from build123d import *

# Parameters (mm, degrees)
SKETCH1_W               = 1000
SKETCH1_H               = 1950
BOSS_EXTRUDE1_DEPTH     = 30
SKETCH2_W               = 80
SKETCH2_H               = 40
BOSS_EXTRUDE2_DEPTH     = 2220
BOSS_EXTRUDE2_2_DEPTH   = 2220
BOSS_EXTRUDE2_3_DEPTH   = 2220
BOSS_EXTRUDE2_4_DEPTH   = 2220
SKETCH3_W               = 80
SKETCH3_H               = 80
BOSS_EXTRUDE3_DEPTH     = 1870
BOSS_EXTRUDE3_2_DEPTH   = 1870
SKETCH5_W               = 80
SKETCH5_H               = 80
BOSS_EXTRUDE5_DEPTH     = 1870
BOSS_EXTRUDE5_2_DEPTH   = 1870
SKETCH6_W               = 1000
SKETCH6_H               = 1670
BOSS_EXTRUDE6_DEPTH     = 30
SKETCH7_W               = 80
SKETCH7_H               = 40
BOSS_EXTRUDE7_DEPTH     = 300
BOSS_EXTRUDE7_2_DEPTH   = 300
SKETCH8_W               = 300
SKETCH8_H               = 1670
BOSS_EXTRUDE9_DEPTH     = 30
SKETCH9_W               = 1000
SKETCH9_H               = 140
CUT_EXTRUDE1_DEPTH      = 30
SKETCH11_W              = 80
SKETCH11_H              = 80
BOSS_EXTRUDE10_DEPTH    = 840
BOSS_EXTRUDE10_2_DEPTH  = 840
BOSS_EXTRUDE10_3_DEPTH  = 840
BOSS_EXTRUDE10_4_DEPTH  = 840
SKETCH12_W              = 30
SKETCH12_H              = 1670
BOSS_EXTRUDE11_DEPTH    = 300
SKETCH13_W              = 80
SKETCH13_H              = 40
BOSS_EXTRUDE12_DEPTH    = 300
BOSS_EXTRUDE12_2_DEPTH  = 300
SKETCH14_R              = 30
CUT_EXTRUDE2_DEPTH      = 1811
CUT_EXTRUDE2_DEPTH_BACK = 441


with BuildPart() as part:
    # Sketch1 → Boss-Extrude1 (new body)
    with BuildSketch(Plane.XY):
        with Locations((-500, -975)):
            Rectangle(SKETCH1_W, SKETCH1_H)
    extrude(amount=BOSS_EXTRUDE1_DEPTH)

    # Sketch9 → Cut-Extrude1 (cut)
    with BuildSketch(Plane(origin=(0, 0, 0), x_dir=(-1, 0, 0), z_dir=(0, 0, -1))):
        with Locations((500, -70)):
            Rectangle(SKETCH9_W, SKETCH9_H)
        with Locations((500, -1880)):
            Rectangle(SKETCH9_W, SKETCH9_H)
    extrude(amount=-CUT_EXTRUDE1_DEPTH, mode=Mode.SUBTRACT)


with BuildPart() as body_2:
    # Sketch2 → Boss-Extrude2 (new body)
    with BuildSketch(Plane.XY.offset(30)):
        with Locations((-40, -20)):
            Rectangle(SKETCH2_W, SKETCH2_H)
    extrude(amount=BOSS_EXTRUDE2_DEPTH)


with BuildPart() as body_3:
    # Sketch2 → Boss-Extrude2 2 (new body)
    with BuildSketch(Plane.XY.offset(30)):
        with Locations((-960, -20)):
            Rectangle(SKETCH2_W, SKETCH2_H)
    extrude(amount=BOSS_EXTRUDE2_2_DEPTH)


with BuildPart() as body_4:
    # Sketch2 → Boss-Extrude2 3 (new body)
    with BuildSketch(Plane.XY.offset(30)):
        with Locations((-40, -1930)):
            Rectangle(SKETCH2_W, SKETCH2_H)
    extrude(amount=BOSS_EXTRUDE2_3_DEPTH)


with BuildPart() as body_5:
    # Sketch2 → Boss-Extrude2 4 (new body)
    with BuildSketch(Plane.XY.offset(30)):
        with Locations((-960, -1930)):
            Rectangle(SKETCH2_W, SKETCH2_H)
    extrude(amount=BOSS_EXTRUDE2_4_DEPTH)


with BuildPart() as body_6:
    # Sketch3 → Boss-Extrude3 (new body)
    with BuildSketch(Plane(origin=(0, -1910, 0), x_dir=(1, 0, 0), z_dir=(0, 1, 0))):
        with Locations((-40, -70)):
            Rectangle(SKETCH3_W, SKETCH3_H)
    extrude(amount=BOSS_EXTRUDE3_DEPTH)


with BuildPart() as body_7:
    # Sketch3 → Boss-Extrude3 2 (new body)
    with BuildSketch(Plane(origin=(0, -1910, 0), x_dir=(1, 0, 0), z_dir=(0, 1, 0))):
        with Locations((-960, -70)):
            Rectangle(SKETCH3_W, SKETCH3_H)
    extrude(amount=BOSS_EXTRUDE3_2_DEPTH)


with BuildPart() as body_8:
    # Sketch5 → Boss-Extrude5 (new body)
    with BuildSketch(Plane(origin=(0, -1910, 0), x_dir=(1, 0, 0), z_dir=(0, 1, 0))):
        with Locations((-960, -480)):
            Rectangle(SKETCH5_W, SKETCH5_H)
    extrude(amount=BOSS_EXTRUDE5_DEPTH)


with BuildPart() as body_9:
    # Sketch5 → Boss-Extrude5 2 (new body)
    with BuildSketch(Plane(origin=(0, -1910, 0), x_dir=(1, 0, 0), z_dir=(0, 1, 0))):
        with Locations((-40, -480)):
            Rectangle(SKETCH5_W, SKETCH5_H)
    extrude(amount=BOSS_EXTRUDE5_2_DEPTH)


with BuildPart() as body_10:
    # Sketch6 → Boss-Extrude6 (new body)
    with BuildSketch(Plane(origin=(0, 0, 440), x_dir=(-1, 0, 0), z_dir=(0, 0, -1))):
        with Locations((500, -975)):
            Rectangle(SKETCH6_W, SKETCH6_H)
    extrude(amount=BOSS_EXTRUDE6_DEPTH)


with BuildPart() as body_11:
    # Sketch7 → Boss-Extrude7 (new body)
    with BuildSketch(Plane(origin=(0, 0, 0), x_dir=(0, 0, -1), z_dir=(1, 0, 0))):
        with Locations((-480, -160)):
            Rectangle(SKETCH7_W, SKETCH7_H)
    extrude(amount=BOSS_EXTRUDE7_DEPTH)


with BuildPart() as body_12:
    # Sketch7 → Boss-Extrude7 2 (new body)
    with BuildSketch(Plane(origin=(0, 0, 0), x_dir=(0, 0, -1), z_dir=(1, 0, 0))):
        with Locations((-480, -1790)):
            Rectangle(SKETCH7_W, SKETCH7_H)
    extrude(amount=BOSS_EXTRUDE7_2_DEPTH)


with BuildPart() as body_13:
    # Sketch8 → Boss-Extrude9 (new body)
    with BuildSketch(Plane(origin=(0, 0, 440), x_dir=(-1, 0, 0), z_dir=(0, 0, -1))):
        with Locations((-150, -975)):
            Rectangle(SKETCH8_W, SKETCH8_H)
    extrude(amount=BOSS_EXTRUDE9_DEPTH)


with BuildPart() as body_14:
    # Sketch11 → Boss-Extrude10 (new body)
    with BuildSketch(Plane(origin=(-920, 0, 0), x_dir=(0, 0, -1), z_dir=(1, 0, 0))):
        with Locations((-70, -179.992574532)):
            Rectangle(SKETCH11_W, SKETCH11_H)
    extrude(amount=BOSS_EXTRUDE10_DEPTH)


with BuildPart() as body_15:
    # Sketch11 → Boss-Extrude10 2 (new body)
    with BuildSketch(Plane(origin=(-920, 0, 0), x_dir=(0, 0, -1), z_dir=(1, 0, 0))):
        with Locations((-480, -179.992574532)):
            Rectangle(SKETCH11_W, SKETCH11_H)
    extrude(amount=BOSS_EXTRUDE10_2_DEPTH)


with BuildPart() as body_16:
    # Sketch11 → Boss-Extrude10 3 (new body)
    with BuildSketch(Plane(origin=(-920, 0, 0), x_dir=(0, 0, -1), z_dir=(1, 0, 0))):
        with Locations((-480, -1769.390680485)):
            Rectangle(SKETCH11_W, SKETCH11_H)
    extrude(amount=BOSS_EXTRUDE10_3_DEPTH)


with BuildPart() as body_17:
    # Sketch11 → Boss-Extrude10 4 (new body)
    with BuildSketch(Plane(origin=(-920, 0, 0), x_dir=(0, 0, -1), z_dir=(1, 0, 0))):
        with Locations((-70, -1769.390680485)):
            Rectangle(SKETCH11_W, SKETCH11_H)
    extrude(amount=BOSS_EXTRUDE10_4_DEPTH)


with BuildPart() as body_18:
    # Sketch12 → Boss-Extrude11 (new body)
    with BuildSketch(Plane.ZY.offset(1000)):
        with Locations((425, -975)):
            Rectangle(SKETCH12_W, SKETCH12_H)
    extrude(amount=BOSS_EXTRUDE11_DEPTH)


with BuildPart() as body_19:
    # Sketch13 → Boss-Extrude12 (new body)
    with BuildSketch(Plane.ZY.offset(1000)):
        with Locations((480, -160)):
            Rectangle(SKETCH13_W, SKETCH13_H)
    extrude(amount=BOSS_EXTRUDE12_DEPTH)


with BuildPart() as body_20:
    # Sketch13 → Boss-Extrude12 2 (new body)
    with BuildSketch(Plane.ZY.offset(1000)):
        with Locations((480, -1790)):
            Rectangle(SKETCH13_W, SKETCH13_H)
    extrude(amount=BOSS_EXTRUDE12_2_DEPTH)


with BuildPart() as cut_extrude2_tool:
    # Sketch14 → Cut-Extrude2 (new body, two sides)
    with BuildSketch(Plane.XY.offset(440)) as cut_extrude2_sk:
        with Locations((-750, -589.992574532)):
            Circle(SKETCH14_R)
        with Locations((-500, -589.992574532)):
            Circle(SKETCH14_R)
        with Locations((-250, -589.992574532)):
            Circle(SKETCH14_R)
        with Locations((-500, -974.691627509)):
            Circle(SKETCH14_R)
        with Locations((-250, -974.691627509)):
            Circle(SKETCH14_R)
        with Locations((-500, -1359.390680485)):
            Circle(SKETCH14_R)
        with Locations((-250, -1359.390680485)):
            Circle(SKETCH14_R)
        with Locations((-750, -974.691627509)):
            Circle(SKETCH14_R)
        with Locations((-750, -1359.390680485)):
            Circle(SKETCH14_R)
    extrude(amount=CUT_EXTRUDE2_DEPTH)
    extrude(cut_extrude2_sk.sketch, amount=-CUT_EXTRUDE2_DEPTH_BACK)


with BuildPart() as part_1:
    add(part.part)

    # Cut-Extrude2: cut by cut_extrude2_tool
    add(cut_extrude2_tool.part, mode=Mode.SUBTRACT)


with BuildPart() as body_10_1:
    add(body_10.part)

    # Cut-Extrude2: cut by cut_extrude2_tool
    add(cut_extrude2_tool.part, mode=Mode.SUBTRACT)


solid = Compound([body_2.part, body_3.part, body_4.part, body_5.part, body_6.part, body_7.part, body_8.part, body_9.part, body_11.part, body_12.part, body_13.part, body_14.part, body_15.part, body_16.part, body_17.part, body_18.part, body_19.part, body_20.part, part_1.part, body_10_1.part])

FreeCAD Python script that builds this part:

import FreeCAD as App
import Part
import Sketcher

V = App.Vector

doc = App.newDocument("Part")
body = doc.addObject("PartDesign::Body", "Body")

# Sketch on XY plane
sketch1 = body.newObject("Sketcher::SketchObject", "Sketch")
sketch1.AttachmentSupport = (doc.getObject("XY_Plane"), [""])
sketch1.MapMode = "FlatFace"
sketch1.addGeometry(Part.LineSegment(V(-1000, 0, 0), V(-1000, -1950, 0)), False)
sketch1.addGeometry(Part.LineSegment(V(-1000, -1950, 0), V(0, -1950, 0)), False)
sketch1.addGeometry(Part.LineSegment(V(0, -1950, 0), V(0, 0, 0)), False)
sketch1.addGeometry(Part.LineSegment(V(0, 0, 0), V(-1000, 0, 0)), False)
sketch1.addConstraint(Sketcher.Constraint("Coincident", 0, 2, 1, 1))
sketch1.addConstraint(Sketcher.Constraint("Coincident", 1, 2, 2, 1))
sketch1.addConstraint(Sketcher.Constraint("Coincident", 2, 2, 3, 1))
sketch1.addConstraint(Sketcher.Constraint("Coincident", 3, 2, 0, 1))
sketch1.addConstraint(Sketcher.Constraint("Vertical", 0))
sketch1.addConstraint(Sketcher.Constraint("Horizontal", 1))
sketch1.addConstraint(Sketcher.Constraint("Vertical", 2))
sketch1.addConstraint(Sketcher.Constraint("Horizontal", 3))
sketch1.addConstraint(Sketcher.Constraint("Coincident", 2, 2, -1, 1))
sketch1.addConstraint(Sketcher.Constraint("DistanceX", 1, 1, 1, 2, 1000.0))
sketch1.addConstraint(Sketcher.Constraint("DistanceY", 0, 2, 0, 1, 1950.0))
pad1 = body.newObject("PartDesign::Pad", "Pad")
pad1.Profile = sketch1
pad1.Length = 30

# Sketch on XY plane
sketch2 = body.newObject("Sketcher::SketchObject", "Sketch001")
sketch2.AttachmentSupport = (doc.getObject("XY_Plane"), [""])
sketch2.MapMode = "FlatFace"
sketch2.addGeometry(Part.LineSegment(V(0, 0, 0), V(0, -140, 0)), False)
sketch2.addGeometry(Part.LineSegment(V(0, -140, 0), V(-1000, -140, 0)), False)
sketch2.addGeometry(Part.LineSegment(V(-1000, -140, 0), V(-1000, 0, 0)), False)
sketch2.addGeometry(Part.LineSegment(V(-1000, 0, 0), V(0, 0, 0)), False)
sketch2.addGeometry(Part.LineSegment(V(0, -1810, 0), V(0, -1950, 0)), False)
sketch2.addGeometry(Part.LineSegment(V(0, -1950, 0), V(-1000, -1950, 0)), False)
sketch2.addGeometry(Part.LineSegment(V(-1000, -1950, 0), V(-1000, -1810, 0)), False)
sketch2.addGeometry(Part.LineSegment(V(-1000, -1810, 0), V(0, -1810, 0)), False)
sketch2.addConstraint(Sketcher.Constraint("Coincident", 0, 2, 1, 1))
sketch2.addConstraint(Sketcher.Constraint("Coincident", 1, 2, 2, 1))
sketch2.addConstraint(Sketcher.Constraint("Coincident", 2, 2, 3, 1))
sketch2.addConstraint(Sketcher.Constraint("Coincident", 3, 2, 0, 1))
sketch2.addConstraint(Sketcher.Constraint("Coincident", 4, 2, 5, 1))
sketch2.addConstraint(Sketcher.Constraint("Coincident", 5, 2, 6, 1))
sketch2.addConstraint(Sketcher.Constraint("Coincident", 6, 2, 7, 1))
sketch2.addConstraint(Sketcher.Constraint("Coincident", 7, 2, 4, 1))
sketch2.addConstraint(Sketcher.Constraint("Vertical", 0))
sketch2.addConstraint(Sketcher.Constraint("Horizontal", 1))
sketch2.addConstraint(Sketcher.Constraint("Vertical", 2))
sketch2.addConstraint(Sketcher.Constraint("Horizontal", 3))
sketch2.addConstraint(Sketcher.Constraint("Vertical", 4))
sketch2.addConstraint(Sketcher.Constraint("Horizontal", 5))
sketch2.addConstraint(Sketcher.Constraint("Vertical", 6))
sketch2.addConstraint(Sketcher.Constraint("Horizontal", 7))
sketch2.addConstraint(Sketcher.Constraint("Coincident", 3, 2, -1, 1))
sketch2.addConstraint(Sketcher.Constraint("PointOnObject", 4, 2, -2))
sketch2.addConstraint(Sketcher.Constraint("Vertical", 2, 2, 5, 2))
sketch2.addConstraint(Sketcher.Constraint("Equal", 2, 4))
sketch2.addConstraint(Sketcher.Constraint("DistanceX", 1, 2, 1, 1, 1000.0))
sketch2.addConstraint(Sketcher.Constraint("DistanceY", 0, 2, 0, 1, 140.0))
sketch2.addConstraint(Sketcher.Constraint("DistanceY", 4, 2, -1, 1, 1950.0))
pocket1 = body.newObject("PartDesign::Pocket", "Pocket")
pocket1.Profile = sketch2
pocket1.Length = 30
pocket1.Reversed = True
body2 = doc.addObject("PartDesign::Body", "Body001")

# Sketch on XY plane
sketch3 = body2.newObject("Sketcher::SketchObject", "Sketch002")
sketch3.AttachmentSupport = (doc.getObject("XY_Plane001"), [""])
sketch3.MapMode = "FlatFace"
sketch3.AttachmentOffset = App.Placement(V(0, 0, 30), App.Rotation())
sketch3.addGeometry(Part.LineSegment(V(-80, 0, 0), V(-80, -40, 0)), False)
sketch3.addGeometry(Part.LineSegment(V(-80, -40, 0), V(0, -40, 0)), False)
sketch3.addGeometry(Part.LineSegment(V(0, -40, 0), V(0, 0, 0)), False)
sketch3.addGeometry(Part.LineSegment(V(0, 0, 0), V(-80, 0, 0)), False)
sketch3.addConstraint(Sketcher.Constraint("Coincident", 0, 2, 1, 1))
sketch3.addConstraint(Sketcher.Constraint("Coincident", 1, 2, 2, 1))
sketch3.addConstraint(Sketcher.Constraint("Coincident", 2, 2, 3, 1))
sketch3.addConstraint(Sketcher.Constraint("Coincident", 3, 2, 0, 1))
sketch3.addConstraint(Sketcher.Constraint("Vertical", 0))
sketch3.addConstraint(Sketcher.Constraint("Horizontal", 1))
sketch3.addConstraint(Sketcher.Constraint("Vertical", 2))
sketch3.addConstraint(Sketcher.Constraint("Horizontal", 3))
sketch3.addConstraint(Sketcher.Constraint("Coincident", 2, 2, -1, 1))
sketch3.addConstraint(Sketcher.Constraint("DistanceX", 1, 1, 1, 2, 80.0))
sketch3.addConstraint(Sketcher.Constraint("DistanceY", 0, 2, 0, 1, 40.0))
pad2 = body2.newObject("PartDesign::Pad", "Pad001")
pad2.Profile = sketch3
pad2.Length = 2220
body3 = doc.addObject("PartDesign::Body", "Body002")

# Sketch on XY plane
sketch4 = body3.newObject("Sketcher::SketchObject", "Sketch003")
sketch4.AttachmentSupport = (doc.getObject("XY_Plane002"), [""])
sketch4.MapMode = "FlatFace"
sketch4.AttachmentOffset = App.Placement(V(0, 0, 30), App.Rotation())
sketch4.addGeometry(Part.LineSegment(V(-1000, 0, 0), V(-1000, -40, 0)), False)
sketch4.addGeometry(Part.LineSegment(V(-1000, -40, 0), V(-920, -40, 0)), False)
sketch4.addGeometry(Part.LineSegment(V(-920, -40, 0), V(-920, 0, 0)), False)
sketch4.addGeometry(Part.LineSegment(V(-920, 0, 0), V(-1000, 0, 0)), False)
sketch4.addConstraint(Sketcher.Constraint("Coincident", 0, 2, 1, 1))
sketch4.addConstraint(Sketcher.Constraint("Coincident", 1, 2, 2, 1))
sketch4.addConstraint(Sketcher.Constraint("Coincident", 2, 2, 3, 1))
sketch4.addConstraint(Sketcher.Constraint("Coincident", 3, 2, 0, 1))
sketch4.addConstraint(Sketcher.Constraint("Vertical", 0))
sketch4.addConstraint(Sketcher.Constraint("Horizontal", 1))
sketch4.addConstraint(Sketcher.Constraint("Vertical", 2))
sketch4.addConstraint(Sketcher.Constraint("Horizontal", 3))
sketch4.addConstraint(Sketcher.Constraint("PointOnObject", 2, 2, -1))
sketch4.addConstraint(Sketcher.Constraint("DistanceX", 1, 1, 1, 2, 80.0))
sketch4.addConstraint(Sketcher.Constraint("DistanceY", 0, 2, 0, 1, 40.0))
sketch4.addConstraint(Sketcher.Constraint("DistanceX", 0, 2, -1, 1, 1000.0))
pad3 = body3.newObject("PartDesign::Pad", "Pad002")
pad3.Profile = sketch4
pad3.Length = 2220
body4 = doc.addObject("PartDesign::Body", "Body003")

# Sketch on XY plane
sketch5 = body4.newObject("Sketcher::SketchObject", "Sketch004")
sketch5.AttachmentSupport = (doc.getObject("XY_Plane003"), [""])
sketch5.MapMode = "FlatFace"
sketch5.AttachmentOffset = App.Placement(V(0, 0, 30), App.Rotation())
sketch5.addGeometry(Part.LineSegment(V(-80, -1910, 0), V(-80, -1950, 0)), False)
sketch5.addGeometry(Part.LineSegment(V(-80, -1950, 0), V(0, -1950, 0)), False)
sketch5.addGeometry(Part.LineSegment(V(0, -1950, 0), V(0, -1910, 0)), False)
sketch5.addGeometry(Part.LineSegment(V(0, -1910, 0), V(-80, -1910, 0)), False)
sketch5.addConstraint(Sketcher.Constraint("Coincident", 0, 2, 1, 1))
sketch5.addConstraint(Sketcher.Constraint("Coincident", 1, 2, 2, 1))
sketch5.addConstraint(Sketcher.Constraint("Coincident", 2, 2, 3, 1))
sketch5.addConstraint(Sketcher.Constraint("Coincident", 3, 2, 0, 1))
sketch5.addConstraint(Sketcher.Constraint("Vertical", 0))
sketch5.addConstraint(Sketcher.Constraint("Horizontal", 1))
sketch5.addConstraint(Sketcher.Constraint("Vertical", 2))
sketch5.addConstraint(Sketcher.Constraint("Horizontal", 3))
sketch5.addConstraint(Sketcher.Constraint("PointOnObject", 1, 2, -2))
sketch5.addConstraint(Sketcher.Constraint("DistanceX", 1, 1, 1, 2, 80.0))
sketch5.addConstraint(Sketcher.Constraint("DistanceY", 0, 2, 0, 1, 40.0))
sketch5.addConstraint(Sketcher.Constraint("DistanceY", 0, 2, -1, 1, 1950.0))
pad4 = body4.newObject("PartDesign::Pad", "Pad003")
pad4.Profile = sketch5
pad4.Length = 2220
body5 = doc.addObject("PartDesign::Body", "Body004")

# Sketch on XY plane
sketch6 = body5.newObject("Sketcher::SketchObject", "Sketch005")
sketch6.AttachmentSupport = (doc.getObject("XY_Plane004"), [""])
sketch6.MapMode = "FlatFace"
sketch6.AttachmentOffset = App.Placement(V(0, 0, 30), App.Rotation())
sketch6.addGeometry(Part.LineSegment(V(-1000, -1910, 0), V(-1000, -1950, 0)), False)
sketch6.addGeometry(Part.LineSegment(V(-1000, -1950, 0), V(-920, -1950, 0)), False)
sketch6.addGeometry(Part.LineSegment(V(-920, -1950, 0), V(-920, -1910, 0)), False)
sketch6.addGeometry(Part.LineSegment(V(-920, -1910, 0), V(-1000, -1910, 0)), False)
sketch6.addConstraint(Sketcher.Constraint("Coincident", 0, 2, 1, 1))
sketch6.addConstraint(Sketcher.Constraint("Coincident", 1, 2, 2, 1))
sketch6.addConstraint(Sketcher.Constraint("Coincident", 2, 2, 3, 1))
sketch6.addConstraint(Sketcher.Constraint("Coincident", 3, 2, 0, 1))
sketch6.addConstraint(Sketcher.Constraint("Vertical", 0))
sketch6.addConstraint(Sketcher.Constraint("Horizontal", 1))
sketch6.addConstraint(Sketcher.Constraint("Vertical", 2))
sketch6.addConstraint(Sketcher.Constraint("Horizontal", 3))
sketch6.addConstraint(Sketcher.Constraint("DistanceX", 1, 1, 1, 2, 80.0))
sketch6.addConstraint(Sketcher.Constraint("DistanceY", 0, 2, 0, 1, 40.0))
sketch6.addConstraint(Sketcher.Constraint("DistanceX", 0, 2, -1, 1, 1000.0))
sketch6.addConstraint(Sketcher.Constraint("DistanceY", 0, 2, -1, 1, 1950.0))
pad5 = body5.newObject("PartDesign::Pad", "Pad004")
pad5.Profile = sketch6
pad5.Length = 2220
body6 = doc.addObject("PartDesign::Body", "Body005")

# Sketch on XZ plane
sketch7 = body6.newObject("Sketcher::SketchObject", "Sketch006")
sketch7.AttachmentSupport = (doc.getObject("XZ_Plane005"), [""])
sketch7.MapMode = "FlatFace"
sketch7.AttachmentOffset = App.Placement(V(0, 0, 1910), App.Rotation())
sketch7.addGeometry(Part.LineSegment(V(-80, 30, 0), V(-80, 110, 0)), False)
sketch7.addGeometry(Part.LineSegment(V(-80, 110, 0), V(0, 110, 0)), False)
sketch7.addGeometry(Part.LineSegment(V(0, 110, 0), V(0, 30, 0)), False)
sketch7.addGeometry(Part.LineSegment(V(0, 30, 0), V(-80, 30, 0)), False)
sketch7.addConstraint(Sketcher.Constraint("Coincident", 0, 2, 1, 1))
sketch7.addConstraint(Sketcher.Constraint("Coincident", 1, 2, 2, 1))
sketch7.addConstraint(Sketcher.Constraint("Coincident", 2, 2, 3, 1))
sketch7.addConstraint(Sketcher.Constraint("Coincident", 3, 2, 0, 1))
sketch7.addConstraint(Sketcher.Constraint("Vertical", 0))
sketch7.addConstraint(Sketcher.Constraint("Horizontal", 1))
sketch7.addConstraint(Sketcher.Constraint("Vertical", 2))
sketch7.addConstraint(Sketcher.Constraint("Horizontal", 3))
sketch7.addConstraint(Sketcher.Constraint("PointOnObject", 1, 2, -2))
sketch7.addConstraint(Sketcher.Constraint("Equal", 3, 0))
sketch7.addConstraint(Sketcher.Constraint("DistanceX", 1, 1, 1, 2, 80.0))
sketch7.addConstraint(Sketcher.Constraint("DistanceY", -1, 1, 0, 2, 110.0))
pad6 = body6.newObject("PartDesign::Pad", "Pad005")
pad6.Profile = sketch7
pad6.Length = 1870
pad6.Reversed = True
body7 = doc.addObject("PartDesign::Body", "Body006")

# Sketch on XZ plane
sketch8 = body7.newObject("Sketcher::SketchObject", "Sketch007")
sketch8.AttachmentSupport = (doc.getObject("XZ_Plane006"), [""])
sketch8.MapMode = "FlatFace"
sketch8.AttachmentOffset = App.Placement(V(0, 0, 1910), App.Rotation())
sketch8.addGeometry(Part.LineSegment(V(-1000, 30, 0), V(-1000, 110, 0)), False)
sketch8.addGeometry(Part.LineSegment(V(-1000, 110, 0), V(-920, 110, 0)), False)
sketch8.addGeometry(Part.LineSegment(V(-920, 110, 0), V(-920, 30, 0)), False)
sketch8.addGeometry(Part.LineSegment(V(-920, 30, 0), V(-1000, 30, 0)), False)
sketch8.addConstraint(Sketcher.Constraint("Coincident", 0, 2, 1, 1))
sketch8.addConstraint(Sketcher.Constraint("Coincident", 1, 2, 2, 1))
sketch8.addConstraint(Sketcher.Constraint("Coincident", 2, 2, 3, 1))
sketch8.addConstraint(Sketcher.Constraint("Coincident", 3, 2, 0, 1))
sketch8.addConstraint(Sketcher.Constraint("Vertical", 0))
sketch8.addConstraint(Sketcher.Constraint("Horizontal", 1))
sketch8.addConstraint(Sketcher.Constraint("Vertical", 2))
sketch8.addConstraint(Sketcher.Constraint("Horizontal", 3))
sketch8.addConstraint(Sketcher.Constraint("Equal", 3, 0))
sketch8.addConstraint(Sketcher.Constraint("DistanceX", 1, 1, 1, 2, 80.0))
sketch8.addConstraint(Sketcher.Constraint("DistanceX", 0, 2, -1, 1, 1000.0))
sketch8.addConstraint(Sketcher.Constraint("DistanceY", -1, 1, 0, 2, 110.0))
pad7 = body7.newObject("PartDesign::Pad", "Pad006")
pad7.Profile = sketch8
pad7.Length = 1870
pad7.Reversed = True
body8 = doc.addObject("PartDesign::Body", "Body007")

# Sketch on XZ plane
sketch9 = body8.newObject("Sketcher::SketchObject", "Sketch008")
sketch9.AttachmentSupport = (doc.getObject("XZ_Plane007"), [""])
sketch9.MapMode = "FlatFace"
sketch9.AttachmentOffset = App.Placement(V(0, 0, 1910), App.Rotation())
sketch9.addGeometry(Part.LineSegment(V(-1000, 440, 0), V(-1000, 520, 0)), False)
sketch9.addGeometry(Part.LineSegment(V(-1000, 520, 0), V(-920, 520, 0)), False)
sketch9.addGeometry(Part.LineSegment(V(-920, 520, 0), V(-920, 440, 0)), False)
sketch9.addGeometry(Part.LineSegment(V(-920, 440, 0), V(-1000, 440, 0)), False)
sketch9.addConstraint(Sketcher.Constraint("Coincident", 0, 2, 1, 1))
sketch9.addConstraint(Sketcher.Constraint("Coincident", 1, 2, 2, 1))
sketch9.addConstraint(Sketcher.Constraint("Coincident", 2, 2, 3, 1))
sketch9.addConstraint(Sketcher.Constraint("Coincident", 3, 2, 0, 1))
sketch9.addConstraint(Sketcher.Constraint("Vertical", 0))
sketch9.addConstraint(Sketcher.Constraint("Horizontal", 1))
sketch9.addConstraint(Sketcher.Constraint("Vertical", 2))
sketch9.addConstraint(Sketcher.Constraint("Horizontal", 3))
sketch9.addConstraint(Sketcher.Constraint("Equal", 3, 0))
sketch9.addConstraint(Sketcher.Constraint("DistanceX", 1, 1, 1, 2, 80.0))
sketch9.addConstraint(Sketcher.Constraint("DistanceX", 0, 2, -1, 1, 1000.0))
sketch9.addConstraint(Sketcher.Constraint("DistanceY", -1, 1, 0, 2, 520.0))
pad8 = body8.newObject("PartDesign::Pad", "Pad007")
pad8.Profile = sketch9
pad8.Length = 1870
pad8.Reversed = True
body9 = doc.addObject("PartDesign::Body", "Body008")

# Sketch on XZ plane
sketch10 = body9.newObject("Sketcher::SketchObject", "Sketch009")
sketch10.AttachmentSupport = (doc.getObject("XZ_Plane008"), [""])
sketch10.MapMode = "FlatFace"
sketch10.AttachmentOffset = App.Placement(V(0, 0, 1910), App.Rotation())
sketch10.addGeometry(Part.LineSegment(V(-80, 440, 0), V(-80, 520, 0)), False)
sketch10.addGeometry(Part.LineSegment(V(-80, 520, 0), V(0, 520, 0)), False)
sketch10.addGeometry(Part.LineSegment(V(0, 520, 0), V(0, 440, 0)), False)
sketch10.addGeometry(Part.LineSegment(V(0, 440, 0), V(-80, 440, 0)), False)
sketch10.addConstraint(Sketcher.Constraint("Coincident", 0, 2, 1, 1))
sketch10.addConstraint(Sketcher.Constraint("Coincident", 1, 2, 2, 1))
sketch10.addConstraint(Sketcher.Constraint("Coincident", 2, 2, 3, 1))
sketch10.addConstraint(Sketcher.Constraint("Coincident", 3, 2, 0, 1))
sketch10.addConstraint(Sketcher.Constraint("Vertical", 0))
sketch10.addConstraint(Sketcher.Constraint("Horizontal", 1))
sketch10.addConstraint(Sketcher.Constraint("Vertical", 2))
sketch10.addConstraint(Sketcher.Constraint("Horizontal", 3))
sketch10.addConstraint(Sketcher.Constraint("PointOnObject", 1, 2, -2))
sketch10.addConstraint(Sketcher.Constraint("Equal", 3, 0))
sketch10.addConstraint(Sketcher.Constraint("DistanceX", 1, 1, 1, 2, 80.0))
sketch10.addConstraint(Sketcher.Constraint("DistanceY", -1, 1, 0, 2, 520.0))
pad9 = body9.newObject("PartDesign::Pad", "Pad008")
pad9.Profile = sketch10
pad9.Length = 1870
pad9.Reversed = True
body10 = doc.addObject("PartDesign::Body", "Body009")

# Sketch on XY plane
sketch11 = body10.newObject("Sketcher::SketchObject", "Sketch010")
sketch11.AttachmentSupport = (doc.getObject("XY_Plane009"), [""])
sketch11.MapMode = "FlatFace"
sketch11.AttachmentOffset = App.Placement(V(0, 0, 440), App.Rotation())
sketch11.addGeometry(Part.LineSegment(V(0, -140, 0), V(0, -1810, 0)), False)
sketch11.addGeometry(Part.LineSegment(V(0, -1810, 0), V(-1000, -1810, 0)), False)
sketch11.addGeometry(Part.LineSegment(V(-1000, -1810, 0), V(-1000, -140, 0)), False)
sketch11.addGeometry(Part.LineSegment(V(-1000, -140, 0), V(0, -140, 0)), False)
sketch11.addConstraint(Sketcher.Constraint("Coincident", 0, 2, 1, 1))
sketch11.addConstraint(Sketcher.Constraint("Coincident", 1, 2, 2, 1))
sketch11.addConstraint(Sketcher.Constraint("Coincident", 2, 2, 3, 1))
sketch11.addConstraint(Sketcher.Constraint("Coincident", 3, 2, 0, 1))
sketch11.addConstraint(Sketcher.Constraint("Vertical", 0))
sketch11.addConstraint(Sketcher.Constraint("Horizontal", 1))
sketch11.addConstraint(Sketcher.Constraint("Vertical", 2))
sketch11.addConstraint(Sketcher.Constraint("Horizontal", 3))
sketch11.addConstraint(Sketcher.Constraint("PointOnObject", 0, 2, -2))
sketch11.addConstraint(Sketcher.Constraint("DistanceX", 1, 2, 1, 1, 1000.0))
sketch11.addConstraint(Sketcher.Constraint("DistanceY", 0, 2, 0, 1, 1670.0))
sketch11.addConstraint(Sketcher.Constraint("DistanceY", 0, 2, -1, 1, 1810.0))
pad10 = body10.newObject("PartDesign::Pad", "Pad009")
pad10.Profile = sketch11
pad10.Length = 30
pad10.Reversed = True
body11 = doc.addObject("PartDesign::Body", "Body010")

# Sketch on YZ plane
sketch12 = body11.newObject("Sketcher::SketchObject", "Sketch011")
sketch12.AttachmentSupport = (doc.getObject("YZ_Plane010"), [""])
sketch12.MapMode = "FlatFace"
sketch12.addGeometry(Part.LineSegment(V(-140, 520, 0), V(-180, 520, 0)), False)
sketch12.addGeometry(Part.LineSegment(V(-180, 520, 0), V(-180, 440, 0)), False)
sketch12.addGeometry(Part.LineSegment(V(-180, 440, 0), V(-140, 440, 0)), False)
sketch12.addGeometry(Part.LineSegment(V(-140, 440, 0), V(-140, 520, 0)), False)
sketch12.addConstraint(Sketcher.Constraint("Coincident", 0, 2, 1, 1))
sketch12.addConstraint(Sketcher.Constraint("Coincident", 1, 2, 2, 1))
sketch12.addConstraint(Sketcher.Constraint("Coincident", 2, 2, 3, 1))
sketch12.addConstraint(Sketcher.Constraint("Coincident", 3, 2, 0, 1))
sketch12.addConstraint(Sketcher.Constraint("Horizontal", 0))
sketch12.addConstraint(Sketcher.Constraint("Vertical", 1))
sketch12.addConstraint(Sketcher.Constraint("Horizontal", 2))
sketch12.addConstraint(Sketcher.Constraint("Vertical", 3))
sketch12.addConstraint(Sketcher.Constraint("DistanceX", 0, 2, 0, 1, 40.0))
sketch12.addConstraint(Sketcher.Constraint("DistanceY", 1, 2, 1, 1, 80.0))
sketch12.addConstraint(Sketcher.Constraint("DistanceX", 0, 2, -1, 1, 180.0))
sketch12.addConstraint(Sketcher.Constraint("DistanceY", -1, 1, 0, 2, 520.0))
pad11 = body11.newObject("PartDesign::Pad", "Pad010")
pad11.Profile = sketch12
pad11.Length = 300
body12 = doc.addObject("PartDesign::Body", "Body011")

# Sketch on YZ plane
sketch13 = body12.newObject("Sketcher::SketchObject", "Sketch012")
sketch13.AttachmentSupport = (doc.getObject("YZ_Plane011"), [""])
sketch13.MapMode = "FlatFace"
sketch13.addGeometry(Part.LineSegment(V(-1770, 520, 0), V(-1810, 520, 0)), False)
sketch13.addGeometry(Part.LineSegment(V(-1810, 520, 0), V(-1810, 440, 0)), False)
sketch13.addGeometry(Part.LineSegment(V(-1810, 440, 0), V(-1770, 440, 0)), False)
sketch13.addGeometry(Part.LineSegment(V(-1770, 440, 0), V(-1770, 520, 0)), False)
sketch13.addConstraint(Sketcher.Constraint("Coincident", 0, 2, 1, 1))
sketch13.addConstraint(Sketcher.Constraint("Coincident", 1, 2, 2, 1))
sketch13.addConstraint(Sketcher.Constraint("Coincident", 2, 2, 3, 1))
sketch13.addConstraint(Sketcher.Constraint("Coincident", 3, 2, 0, 1))
sketch13.addConstraint(Sketcher.Constraint("Horizontal", 0))
sketch13.addConstraint(Sketcher.Constraint("Vertical", 1))
sketch13.addConstraint(Sketcher.Constraint("Horizontal", 2))
sketch13.addConstraint(Sketcher.Constraint("Vertical", 3))
sketch13.addConstraint(Sketcher.Constraint("DistanceX", 0, 2, 0, 1, 40.0))
sketch13.addConstraint(Sketcher.Constraint("DistanceY", 1, 2, 1, 1, 80.0))
sketch13.addConstraint(Sketcher.Constraint("DistanceX", 0, 2, -1, 1, 1810.0))
sketch13.addConstraint(Sketcher.Constraint("DistanceY", -1, 1, 0, 2, 520.0))
pad12 = body12.newObject("PartDesign::Pad", "Pad011")
pad12.Profile = sketch13
pad12.Length = 300
body13 = doc.addObject("PartDesign::Body", "Body012")

# Sketch on XY plane
sketch14 = body13.newObject("Sketcher::SketchObject", "Sketch013")
sketch14.AttachmentSupport = (doc.getObject("XY_Plane012"), [""])
sketch14.MapMode = "FlatFace"
sketch14.AttachmentOffset = App.Placement(V(0, 0, 440), App.Rotation())
sketch14.addGeometry(Part.LineSegment(V(300, -140, 0), V(300, -1810, 0)), False)
sketch14.addGeometry(Part.LineSegment(V(300, -1810, 0), V(0, -1810, 0)), False)
sketch14.addGeometry(Part.LineSegment(V(0, -1810, 0), V(0, -140, 0)), False)
sketch14.addGeometry(Part.LineSegment(V(0, -140, 0), V(300, -140, 0)), False)
sketch14.addConstraint(Sketcher.Constraint("Coincident", 0, 2, 1, 1))
sketch14.addConstraint(Sketcher.Constraint("Coincident", 1, 2, 2, 1))
sketch14.addConstraint(Sketcher.Constraint("Coincident", 2, 2, 3, 1))
sketch14.addConstraint(Sketcher.Constraint("Coincident", 3, 2, 0, 1))
sketch14.addConstraint(Sketcher.Constraint("Vertical", 0))
sketch14.addConstraint(Sketcher.Constraint("Horizontal", 1))
sketch14.addConstraint(Sketcher.Constraint("Vertical", 2))
sketch14.addConstraint(Sketcher.Constraint("Horizontal", 3))
sketch14.addConstraint(Sketcher.Constraint("PointOnObject", 1, 2, -2))
sketch14.addConstraint(Sketcher.Constraint("DistanceX", 1, 2, 1, 1, 300.0))
sketch14.addConstraint(Sketcher.Constraint("DistanceY", 0, 2, 0, 1, 1670.0))
sketch14.addConstraint(Sketcher.Constraint("DistanceY", 0, 2, -1, 1, 1810.0))
pad13 = body13.newObject("PartDesign::Pad", "Pad012")
pad13.Profile = sketch14
pad13.Length = 30
pad13.Reversed = True
body14 = doc.addObject("PartDesign::Body", "Body013")

# Sketch on YZ plane
sketch15 = body14.newObject("Sketcher::SketchObject", "Sketch014")
sketch15.AttachmentSupport = (doc.getObject("YZ_Plane013"), [""])
sketch15.MapMode = "FlatFace"
sketch15.AttachmentOffset = App.Placement(V(0, 0, -920), App.Rotation())
sketch15.addGeometry(Part.LineSegment(V(-140, 110, 0), V(-220, 110, 0)), False)
sketch15.addGeometry(Part.LineSegment(V(-220, 110, 0), V(-220, 30, 0)), False)
sketch15.addGeometry(Part.LineSegment(V(-220, 30, 0), V(-140, 30, 0)), False)
sketch15.addGeometry(Part.LineSegment(V(-140, 30, 0), V(-140, 110, 0)), False)
sketch15.addConstraint(Sketcher.Constraint("Coincident", 0, 2, 1, 1))
sketch15.addConstraint(Sketcher.Constraint("Coincident", 1, 2, 2, 1))
sketch15.addConstraint(Sketcher.Constraint("Coincident", 2, 2, 3, 1))
sketch15.addConstraint(Sketcher.Constraint("Coincident", 3, 2, 0, 1))
sketch15.addConstraint(Sketcher.Constraint("Horizontal", 0))
sketch15.addConstraint(Sketcher.Constraint("Vertical", 1))
sketch15.addConstraint(Sketcher.Constraint("Horizontal", 2))
sketch15.addConstraint(Sketcher.Constraint("Vertical", 3))
sketch15.addConstraint(Sketcher.Constraint("Equal", 2, 1))
sketch15.addConstraint(Sketcher.Constraint("DistanceX", 0, 2, 0, 1, 80.0))
sketch15.addConstraint(Sketcher.Constraint("DistanceY", -1, 1, 0, 2, 110.0))
sketch15.addConstraint(Sketcher.Constraint("DistanceX", 0, 2, -1, 1, 219.992575))
pad14 = body14.newObject("PartDesign::Pad", "Pad013")
pad14.Profile = sketch15
pad14.Length = 840
body15 = doc.addObject("PartDesign::Body", "Body014")

# Sketch on YZ plane
sketch16 = body15.newObject("Sketcher::SketchObject", "Sketch015")
sketch16.AttachmentSupport = (doc.getObject("YZ_Plane014"), [""])
sketch16.MapMode = "FlatFace"
sketch16.AttachmentOffset = App.Placement(V(0, 0, -920), App.Rotation())
sketch16.addGeometry(Part.LineSegment(V(-140, 520, 0), V(-220, 520, 0)), False)
sketch16.addGeometry(Part.LineSegment(V(-220, 520, 0), V(-220, 440, 0)), False)
sketch16.addGeometry(Part.LineSegment(V(-220, 440, 0), V(-140, 440, 0)), False)
sketch16.addGeometry(Part.LineSegment(V(-140, 440, 0), V(-140, 520, 0)), False)
sketch16.addConstraint(Sketcher.Constraint("Coincident", 0, 2, 1, 1))
sketch16.addConstraint(Sketcher.Constraint("Coincident", 1, 2, 2, 1))
sketch16.addConstraint(Sketcher.Constraint("Coincident", 2, 2, 3, 1))
sketch16.addConstraint(Sketcher.Constraint("Coincident", 3, 2, 0, 1))
sketch16.addConstraint(Sketcher.Constraint("Horizontal", 0))
sketch16.addConstraint(Sketcher.Constraint("Vertical", 1))
sketch16.addConstraint(Sketcher.Constraint("Horizontal", 2))
sketch16.addConstraint(Sketcher.Constraint("Vertical", 3))
sketch16.addConstraint(Sketcher.Constraint("Equal", 2, 1))
sketch16.addConstraint(Sketcher.Constraint("DistanceX", 0, 2, 0, 1, 80.0))
sketch16.addConstraint(Sketcher.Constraint("DistanceY", -1, 1, 0, 2, 520.0))
sketch16.addConstraint(Sketcher.Constraint("DistanceX", 0, 2, -1, 1, 219.992575))
pad15 = body15.newObject("PartDesign::Pad", "Pad014")
pad15.Profile = sketch16
pad15.Length = 840
body16 = doc.addObject("PartDesign::Body", "Body015")

# Sketch on YZ plane
sketch17 = body16.newObject("Sketcher::SketchObject", "Sketch016")
sketch17.AttachmentSupport = (doc.getObject("YZ_Plane015"), [""])
sketch17.MapMode = "FlatFace"
sketch17.AttachmentOffset = App.Placement(V(0, 0, -920), App.Rotation())
sketch17.addGeometry(Part.LineSegment(V(-1729, 520, 0), V(-1809, 520, 0)), False)
sketch17.addGeometry(Part.LineSegment(V(-1809, 520, 0), V(-1809, 440, 0)), False)
sketch17.addGeometry(Part.LineSegment(V(-1809, 440, 0), V(-1729, 440, 0)), False)
sketch17.addGeometry(Part.LineSegment(V(-1729, 440, 0), V(-1729, 520, 0)), False)
sketch17.addConstraint(Sketcher.Constraint("Coincident", 0, 2, 1, 1))
sketch17.addConstraint(Sketcher.Constraint("Coincident", 1, 2, 2, 1))
sketch17.addConstraint(Sketcher.Constraint("Coincident", 2, 2, 3, 1))
sketch17.addConstraint(Sketcher.Constraint("Coincident", 3, 2, 0, 1))
sketch17.addConstraint(Sketcher.Constraint("Horizontal", 0))
sketch17.addConstraint(Sketcher.Constraint("Vertical", 1))
sketch17.addConstraint(Sketcher.Constraint("Horizontal", 2))
sketch17.addConstraint(Sketcher.Constraint("Vertical", 3))
sketch17.addConstraint(Sketcher.Constraint("Equal", 2, 1))
sketch17.addConstraint(Sketcher.Constraint("DistanceX", 0, 2, 0, 1, 80.0))
sketch17.addConstraint(Sketcher.Constraint("DistanceY", -1, 1, 0, 2, 520.0))
sketch17.addConstraint(Sketcher.Constraint("DistanceX", 0, 2, -1, 1, 1809.39068))
pad16 = body16.newObject("PartDesign::Pad", "Pad015")
pad16.Profile = sketch17
pad16.Length = 840
body17 = doc.addObject("PartDesign::Body", "Body016")

# Sketch on YZ plane
sketch18 = body17.newObject("Sketcher::SketchObject", "Sketch017")
sketch18.AttachmentSupport = (doc.getObject("YZ_Plane016"), [""])
sketch18.MapMode = "FlatFace"
sketch18.AttachmentOffset = App.Placement(V(0, 0, -920), App.Rotation())
sketch18.addGeometry(Part.LineSegment(V(-1729, 110, 0), V(-1809, 110, 0)), False)
sketch18.addGeometry(Part.LineSegment(V(-1809, 110, 0), V(-1809, 30, 0)), False)
sketch18.addGeometry(Part.LineSegment(V(-1809, 30, 0), V(-1729, 30, 0)), False)
sketch18.addGeometry(Part.LineSegment(V(-1729, 30, 0), V(-1729, 110, 0)), False)
sketch18.addConstraint(Sketcher.Constraint("Coincident", 0, 2, 1, 1))
sketch18.addConstraint(Sketcher.Constraint("Coincident", 1, 2, 2, 1))
sketch18.addConstraint(Sketcher.Constraint("Coincident", 2, 2, 3, 1))
sketch18.addConstraint(Sketcher.Constraint("Coincident", 3, 2, 0, 1))
sketch18.addConstraint(Sketcher.Constraint("Horizontal", 0))
sketch18.addConstraint(Sketcher.Constraint("Vertical", 1))
sketch18.addConstraint(Sketcher.Constraint("Horizontal", 2))
sketch18.addConstraint(Sketcher.Constraint("Vertical", 3))
sketch18.addConstraint(Sketcher.Constraint("Equal", 2, 1))
sketch18.addConstraint(Sketcher.Constraint("DistanceX", 0, 2, 0, 1, 80.0))
sketch18.addConstraint(Sketcher.Constraint("DistanceY", -1, 1, 0, 2, 110.0))
sketch18.addConstraint(Sketcher.Constraint("DistanceX", 0, 2, -1, 1, 1809.39068))
pad17 = body17.newObject("PartDesign::Pad", "Pad016")
pad17.Profile = sketch18
pad17.Length = 840
body18 = doc.addObject("PartDesign::Body", "Body017")

# Sketch on YZ plane
sketch19 = body18.newObject("Sketcher::SketchObject", "Sketch018")
sketch19.AttachmentSupport = (doc.getObject("YZ_Plane017"), [""])
sketch19.MapMode = "FlatFace"
sketch19.AttachmentOffset = App.Placement(V(0, 0, -1000), App.Rotation())
sketch19.addGeometry(Part.LineSegment(V(-140, 410, 0), V(-1810, 410, 0)), False)
sketch19.addGeometry(Part.LineSegment(V(-1810, 410, 0), V(-1810, 440, 0)), False)
sketch19.addGeometry(Part.LineSegment(V(-1810, 440, 0), V(-140, 440, 0)), False)
sketch19.addGeometry(Part.LineSegment(V(-140, 440, 0), V(-140, 410, 0)), False)
sketch19.addConstraint(Sketcher.Constraint("Coincident", 0, 2, 1, 1))
sketch19.addConstraint(Sketcher.Constraint("Coincident", 1, 2, 2, 1))
sketch19.addConstraint(Sketcher.Constraint("Coincident", 2, 2, 3, 1))
sketch19.addConstraint(Sketcher.Constraint("Coincident", 3, 2, 0, 1))
sketch19.addConstraint(Sketcher.Constraint("Horizontal", 0))
sketch19.addConstraint(Sketcher.Constraint("Vertical", 1))
sketch19.addConstraint(Sketcher.Constraint("Horizontal", 2))
sketch19.addConstraint(Sketcher.Constraint("Vertical", 3))
sketch19.addConstraint(Sketcher.Constraint("DistanceX", 0, 2, 0, 1, 1670.0))
sketch19.addConstraint(Sketcher.Constraint("DistanceY", 1, 1, 1, 2, 30.0))
sketch19.addConstraint(Sketcher.Constraint("DistanceX", 0, 2, -1, 1, 1810.0))
sketch19.addConstraint(Sketcher.Constraint("DistanceY", -1, 1, 0, 2, 410.0))
pad18 = body18.newObject("PartDesign::Pad", "Pad017")
pad18.Profile = sketch19
pad18.Length = 300
pad18.Reversed = True
body19 = doc.addObject("PartDesign::Body", "Body018")

# Sketch on YZ plane
sketch20 = body19.newObject("Sketcher::SketchObject", "Sketch019")
sketch20.AttachmentSupport = (doc.getObject("YZ_Plane018"), [""])
sketch20.MapMode = "FlatFace"
sketch20.AttachmentOffset = App.Placement(V(0, 0, -1000), App.Rotation())
sketch20.addGeometry(Part.LineSegment(V(-140, 440, 0), V(-180, 440, 0)), False)
sketch20.addGeometry(Part.LineSegment(V(-180, 440, 0), V(-180, 520, 0)), False)
sketch20.addGeometry(Part.LineSegment(V(-180, 520, 0), V(-140, 520, 0)), False)
sketch20.addGeometry(Part.LineSegment(V(-140, 520, 0), V(-140, 440, 0)), False)
sketch20.addConstraint(Sketcher.Constraint("Coincident", 0, 2, 1, 1))
sketch20.addConstraint(Sketcher.Constraint("Coincident", 1, 2, 2, 1))
sketch20.addConstraint(Sketcher.Constraint("Coincident", 2, 2, 3, 1))
sketch20.addConstraint(Sketcher.Constraint("Coincident", 3, 2, 0, 1))
sketch20.addConstraint(Sketcher.Constraint("Horizontal", 0))
sketch20.addConstraint(Sketcher.Constraint("Vertical", 1))
sketch20.addConstraint(Sketcher.Constraint("Horizontal", 2))
sketch20.addConstraint(Sketcher.Constraint("Vertical", 3))
sketch20.addConstraint(Sketcher.Constraint("DistanceX", 0, 2, 0, 1, 40.0))
sketch20.addConstraint(Sketcher.Constraint("DistanceY", 1, 1, 1, 2, 80.0))
sketch20.addConstraint(Sketcher.Constraint("DistanceX", 0, 2, -1, 1, 180.0))
sketch20.addConstraint(Sketcher.Constraint("DistanceY", -1, 1, 0, 2, 440.0))
pad19 = body19.newObject("PartDesign::Pad", "Pad018")
pad19.Profile = sketch20
pad19.Length = 300
pad19.Reversed = True
body20 = doc.addObject("PartDesign::Body", "Body019")

# Sketch on YZ plane
sketch21 = body20.newObject("Sketcher::SketchObject", "Sketch020")
sketch21.AttachmentSupport = (doc.getObject("YZ_Plane019"), [""])
sketch21.MapMode = "FlatFace"
sketch21.AttachmentOffset = App.Placement(V(0, 0, -1000), App.Rotation())
sketch21.addGeometry(Part.LineSegment(V(-1770, 440, 0), V(-1810, 440, 0)), False)
sketch21.addGeometry(Part.LineSegment(V(-1810, 440, 0), V(-1810, 520, 0)), False)
sketch21.addGeometry(Part.LineSegment(V(-1810, 520, 0), V(-1770, 520, 0)), False)
sketch21.addGeometry(Part.LineSegment(V(-1770, 520, 0), V(-1770, 440, 0)), False)
sketch21.addConstraint(Sketcher.Constraint("Coincident", 0, 2, 1, 1))
sketch21.addConstraint(Sketcher.Constraint("Coincident", 1, 2, 2, 1))
sketch21.addConstraint(Sketcher.Constraint("Coincident", 2, 2, 3, 1))
sketch21.addConstraint(Sketcher.Constraint("Coincident", 3, 2, 0, 1))
sketch21.addConstraint(Sketcher.Constraint("Horizontal", 0))
sketch21.addConstraint(Sketcher.Constraint("Vertical", 1))
sketch21.addConstraint(Sketcher.Constraint("Horizontal", 2))
sketch21.addConstraint(Sketcher.Constraint("Vertical", 3))
sketch21.addConstraint(Sketcher.Constraint("DistanceX", 0, 2, 0, 1, 40.0))
sketch21.addConstraint(Sketcher.Constraint("DistanceY", 1, 1, 1, 2, 80.0))
sketch21.addConstraint(Sketcher.Constraint("DistanceX", 0, 2, -1, 1, 1810.0))
sketch21.addConstraint(Sketcher.Constraint("DistanceY", -1, 1, 0, 2, 440.0))
pad20 = body20.newObject("PartDesign::Pad", "Pad019")
pad20.Profile = sketch21
pad20.Length = 300
pad20.Reversed = True
body21 = doc.addObject("PartDesign::Body", "Body020")
body21.AllowCompound = True

# Sketch on XY plane
sketch22 = body21.newObject("Sketcher::SketchObject", "Sketch021")
sketch22.AttachmentSupport = (doc.getObject("XY_Plane020"), [""])
sketch22.MapMode = "FlatFace"
sketch22.AttachmentOffset = App.Placement(V(0, 0, 440), App.Rotation())
sketch22.addGeometry(Part.Circle(V(-750, -590, 0), V(0, 0, 1), 30), False)
sketch22.addGeometry(Part.Circle(V(-500, -590, 0), V(0, 0, 1), 30), False)
sketch22.addGeometry(Part.Circle(V(-250, -590, 0), V(0, 0, 1), 30), False)
sketch22.addGeometry(Part.Circle(V(-500, -975, 0), V(0, 0, 1), 30), False)
sketch22.addGeometry(Part.Circle(V(-250, -975, 0), V(0, 0, 1), 30), False)
sketch22.addGeometry(Part.Circle(V(-500, -1359, 0), V(0, 0, 1), 30), False)
sketch22.addGeometry(Part.Circle(V(-250, -1359, 0), V(0, 0, 1), 30), False)
sketch22.addGeometry(Part.Circle(V(-750, -975, 0), V(0, 0, 1), 30), False)
sketch22.addGeometry(Part.Circle(V(-750, -1359, 0), V(0, 0, 1), 30), False)
sketch22.addConstraint(Sketcher.Constraint("Equal", 0, 1))
sketch22.addConstraint(Sketcher.Constraint("Equal", 1, 2))
sketch22.addConstraint(Sketcher.Constraint("Equal", 2, 3))
sketch22.addConstraint(Sketcher.Constraint("Equal", 3, 4))
sketch22.addConstraint(Sketcher.Constraint("Equal", 4, 5))
sketch22.addConstraint(Sketcher.Constraint("Equal", 5, 6))
sketch22.addConstraint(Sketcher.Constraint("Equal", 6, 7))
sketch22.addConstraint(Sketcher.Constraint("Equal", 7, 8))
sketch22.addConstraint(Sketcher.Constraint("Horizontal", 0, 3, 1, 3))
sketch22.addConstraint(Sketcher.Constraint("Horizontal", 1, 3, 2, 3))
sketch22.addConstraint(Sketcher.Constraint("Horizontal", 3, 3, 4, 3))
sketch22.addConstraint(Sketcher.Constraint("Horizontal", 5, 3, 6, 3))
sketch22.addConstraint(Sketcher.Constraint("Horizontal", 4, 3, 7, 3))
sketch22.addConstraint(Sketcher.Constraint("Horizontal", 6, 3, 8, 3))
sketch22.addConstraint(Sketcher.Constraint("Vertical", 1, 3, 3, 3))
sketch22.addConstraint(Sketcher.Constraint("Vertical", 2, 3, 4, 3))
sketch22.addConstraint(Sketcher.Constraint("Vertical", 3, 3, 5, 3))
sketch22.addConstraint(Sketcher.Constraint("Vertical", 4, 3, 6, 3))
sketch22.addConstraint(Sketcher.Constraint("Vertical", 0, 3, 7, 3))
sketch22.addConstraint(Sketcher.Constraint("Vertical", 7, 3, 8, 3))
sketch22.addConstraint(Sketcher.Constraint("Diameter", 0, 60.0))
sketch22.addConstraint(Sketcher.Constraint("DistanceX", 0, 3, -1, 1, 750.0))
sketch22.addConstraint(Sketcher.Constraint("DistanceX", 1, 3, -1, 1, 500.0))
sketch22.addConstraint(Sketcher.Constraint("DistanceX", 2, 3, -1, 1, 250.0))
sketch22.addConstraint(Sketcher.Constraint("DistanceY", 5, 3, -1, 1, 1359.39068))
sketch22.addConstraint(Sketcher.Constraint("DistanceY", 0, 3, -1, 1, 589.992575))
sketch22.addConstraint(Sketcher.Constraint("DistanceY", 3, 3, -1, 1, 974.691628))
pad21 = body21.newObject("PartDesign::Pad", "Pad020")
pad21.Profile = sketch22
pad21.Type = "TwoLengths"
pad21.Length = 1811
pad21.Length2 = 441
doc.recompute()

body22 = doc.addObject("PartDesign::Body", "Body021")
body22.BaseFeature = body21
boolean = body.newObject("PartDesign::Boolean", "Boolean")
boolean.Type = "Cut"
boolean.addObjects([body22])
doc.recompute()

boolean2 = body10.newObject("PartDesign::Boolean", "Boolean001")
boolean2.Type = "Cut"
boolean2.addObjects([body21])

doc.recompute()
